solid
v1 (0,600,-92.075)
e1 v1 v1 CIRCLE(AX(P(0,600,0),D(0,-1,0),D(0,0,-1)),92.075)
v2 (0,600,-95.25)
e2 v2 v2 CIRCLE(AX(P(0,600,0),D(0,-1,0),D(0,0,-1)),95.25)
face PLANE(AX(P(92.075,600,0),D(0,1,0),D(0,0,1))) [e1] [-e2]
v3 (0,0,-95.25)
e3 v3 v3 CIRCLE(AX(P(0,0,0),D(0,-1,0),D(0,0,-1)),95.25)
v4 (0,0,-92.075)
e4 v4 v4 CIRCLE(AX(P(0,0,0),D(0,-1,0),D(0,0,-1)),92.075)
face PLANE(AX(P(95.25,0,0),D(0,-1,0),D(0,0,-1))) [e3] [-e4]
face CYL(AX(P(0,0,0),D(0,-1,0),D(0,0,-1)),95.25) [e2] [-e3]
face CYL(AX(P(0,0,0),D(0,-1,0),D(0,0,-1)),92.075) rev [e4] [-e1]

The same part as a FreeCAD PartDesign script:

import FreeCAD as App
import Part
import Sketcher
from FreeCAD import Vector

doc = App.newDocument("Part")
params = doc.addObject("Spreadsheet::Sheet", "Params")
for row, (alias, value) in enumerate([
    ("sketch1_height", "600 mm"),
    ("revolution_angle", "360 deg"),
], start=1):
    params.set(f"A{row}", alias)
    params.set(f"B{row}", "=" + value)
    params.setAlias(f"B{row}", alias)

body = doc.addObject("PartDesign::Body", "Body")

# Sketch on XY plane
sketch1 = doc.addObject("Sketcher::SketchObject", "Sketch")
body.addObject(sketch1)
sketch1.AttachmentSupport = (doc.XY_Plane, [""])
sketch1.MapMode = "FlatFace"
sketch1.addGeometry(Part.LineSegment(Vector(92.075, 600, 0), Vector(92.075, 0, 0)), False)
sketch1.addGeometry(Part.LineSegment(Vector(92.075, 0, 0), Vector(95.25, 0, 0)), False)
sketch1.addGeometry(Part.LineSegment(Vector(95.25, 0, 0), Vector(95.25, 600, 0)), False)
sketch1.addGeometry(Part.LineSegment(Vector(95.25, 600, 0), Vector(92.075, 600, 0)), False)
sketch1.addConstraint(Sketcher.Constraint("Coincident", 0, 2, 1, 1))
sketch1.addConstraint(Sketcher.Constraint("Coincident", 1, 2, 2, 1))
sketch1.addConstraint(Sketcher.Constraint("Coincident", 2, 2, 3, 1))
sketch1.addConstraint(Sketcher.Constraint("Coincident", 3, 2, 0, 1))
sketch1.addConstraint(Sketcher.Constraint("Vertical", 0))
sketch1.addConstraint(Sketcher.Constraint("Horizontal", 1))
sketch1.addConstraint(Sketcher.Constraint("Vertical", 2))
sketch1.addConstraint(Sketcher.Constraint("Horizontal", 3))
sketch1.addConstraint(Sketcher.Constraint("PointOnObject", 0, 2, -1))
sketch1.addConstraint(Sketcher.Constraint("DistanceY", 0, 2, 0, 1, 600.0))
sketch1.addConstraint(Sketcher.Constraint("DistanceX", 1, 1, 1, 2, 3.175))
sketch1.addConstraint(Sketcher.Constraint("DistanceX", -1, 1, 1, 2, 95.25))
sketch1.setExpression("Constraints[9]", "Params.sketch1_height")
revolution = doc.addObject("PartDesign::Revolution", "Revolution")
body.addObject(revolution)
revolution.Profile = sketch1
revolution.ReferenceAxis = (sketch1, ["V_Axis"])
revolution.setExpression("Angle", "Params.revolution_angle")

doc.recompute()
